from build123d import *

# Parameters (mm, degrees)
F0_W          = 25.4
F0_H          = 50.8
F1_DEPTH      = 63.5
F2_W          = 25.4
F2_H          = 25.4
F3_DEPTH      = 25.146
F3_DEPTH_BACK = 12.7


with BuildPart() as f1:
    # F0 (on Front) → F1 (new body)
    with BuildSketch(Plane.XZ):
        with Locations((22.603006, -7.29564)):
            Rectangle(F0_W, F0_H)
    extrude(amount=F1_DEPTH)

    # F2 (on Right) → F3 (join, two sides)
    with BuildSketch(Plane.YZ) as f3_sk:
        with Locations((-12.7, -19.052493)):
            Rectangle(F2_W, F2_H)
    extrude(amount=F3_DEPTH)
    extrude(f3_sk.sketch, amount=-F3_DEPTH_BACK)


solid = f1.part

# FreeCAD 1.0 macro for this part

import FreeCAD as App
import Part
import Sketcher

V = App.Vector
Q = App.Units.Quantity


def add_polygon(sketch, points):
    """Adds a closed chain of lines whose ends are joined by coincident constraints."""
    first, n = sketch.GeometryCount, len(points)
    for a, b in zip(points, points[1:] + points[:1]):
        sketch.addGeometry(Part.LineSegment(App.Vector(*a, 0), App.Vector(*b, 0)), False)
    for i in range(n):
        sketch.addConstraint(Sketcher.Constraint("Coincident", first + i, 2, first + (i + 1) % n, 1))

doc = App.newDocument("Part")
params = doc.addObject("Spreadsheet::Sheet", "Params")
for row, (alias, value) in enumerate([
    ("sketch1_width", "1 in"),
    ("sketch1_height", "2 in"),
    ("pad1_length", "2.5 in"),
    ("sketch2_width", "1 in"),
    ("pad2_length", "0.99 in"),
    ("pad2_length2", "0.5 in"),
], start=1):
    params.set(f"A{row}", alias)
    params.set(f"B{row}", "=" + value)
    params.setAlias(f"B{row}", alias)

body = doc.addObject("PartDesign::Body", "Body")

# Sketch on XZ plane
sketch1 = doc.addObject("Sketcher::SketchObject", "Sketch")
body.addObject(sketch1)
sketch1.AttachmentSupport = (doc.XZ_Plane, [""])
sketch1.MapMode = "FlatFace"
add_polygon(sketch1, [(10, 18), (10, -33), (35, -33), (35, 18)])  # lines 0-3
sketch1.addConstraint([
    Sketcher.Constraint("Vertical", 0),
    Sketcher.Constraint("Horizontal", 1),
    Sketcher.Constraint("Vertical", 2),
    Sketcher.Constraint("Horizontal", 3),
    Sketcher.Constraint("DistanceX", 1, 1, 1, 2, Q("1 in")),
    Sketcher.Constraint("DistanceY", 0, 2, 0, 1, Q("2 in")),
    Sketcher.Constraint("DistanceY", 0, 2, -1, 1, 32.69564),
    Sketcher.Constraint("DistanceX", -1, 1, 0, 2, 9.903006),
])
sketch1.setExpression("Constraints[8]", "Params.sketch1_width")
sketch1.setExpression("Constraints[9]", "Params.sketch1_height")
pad1 = doc.addObject("PartDesign::Pad", "Pad")
body.addObject(pad1)
pad1.Profile = sketch1
pad1.setExpression("Length", "Params.pad1_length")

# Sketch on YZ plane
sketch2 = doc.addObject("Sketcher::SketchObject", "Sketch001")
body.addObject(sketch2)
sketch2.AttachmentSupport = (doc.YZ_Plane, [""])
sketch2.MapMode = "FlatFace"
add_polygon(sketch2, [(-25, -6), (-25, -32), (0, -32), (0, -6)])  # lines 0-3
sketch2.addConstraint([
    Sketcher.Constraint("Vertical", 0),
    Sketcher.Constraint("Horizontal", 1),
    Sketcher.Constraint("Vertical", 2),
    Sketcher.Constraint("Horizontal", 3),
    Sketcher.Constraint("PointOnObject", 1, 2, -2),
    Sketcher.Constraint("Equal", 3, 0),
    Sketcher.Constraint("DistanceX", 1, 1, 1, 2, Q("1 in")),
    Sketcher.Constraint("DistanceY", 0, 2, -1, 1, 31.752493),
])
sketch2.setExpression("Constraints[10]", "Params.sketch2_width")
pad2 = doc.addObject("PartDesign::Pad", "Pad001")
body.addObject(pad2)
pad2.Profile = sketch2
pad2.Type = "TwoLengths"
pad2.setExpression("Length", "Params.pad2_length")
pad2.setExpression("Length2", "Params.pad2_length2")

doc.recompute()
